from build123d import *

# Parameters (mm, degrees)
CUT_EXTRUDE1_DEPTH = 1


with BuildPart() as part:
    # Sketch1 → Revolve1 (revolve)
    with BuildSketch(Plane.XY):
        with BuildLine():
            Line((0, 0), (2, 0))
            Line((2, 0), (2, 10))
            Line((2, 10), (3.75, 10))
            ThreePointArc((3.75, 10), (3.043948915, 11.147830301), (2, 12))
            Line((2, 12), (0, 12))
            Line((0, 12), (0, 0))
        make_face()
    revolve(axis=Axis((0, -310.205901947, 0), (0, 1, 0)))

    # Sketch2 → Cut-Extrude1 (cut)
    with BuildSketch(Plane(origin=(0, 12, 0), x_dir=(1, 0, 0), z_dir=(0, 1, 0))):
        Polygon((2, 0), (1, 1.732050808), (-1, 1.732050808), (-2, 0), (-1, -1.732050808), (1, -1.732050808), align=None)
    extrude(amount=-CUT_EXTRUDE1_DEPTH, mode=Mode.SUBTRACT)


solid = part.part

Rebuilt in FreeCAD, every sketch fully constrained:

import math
import FreeCAD as App
import Part
import Sketcher
from FreeCAD import Vector
Q = App.Units.Quantity

doc = App.newDocument("Part")
body = doc.addObject("PartDesign::Body", "Body")

# Sketch on XY plane
sketch1 = body.newObject("Sketcher::SketchObject", "Sketch")
sketch1.AttachmentSupport = (doc.getObject("XY_Plane"), [""])
sketch1.MapMode = "FlatFace"
sketch1.addGeometry([
    Part.LineSegment(Vector(0, 0, 0), Vector(2, 0, 0)),  # 0
    Part.LineSegment(Vector(2, 0, 0), Vector(2, 10, 0)),  # 1
    Part.LineSegment(Vector(2, 10, 0), Vector(3.8, 10, 0)),  # 2
    Part.ArcOfCircle(Part.Circle(Vector(0, 8.5, 0), Vector(0, 0, 1), 4), math.radians(22), math.radians(60)),  # 3
    Part.LineSegment(Vector(2, 12, 0), Vector(0, 12, 0)),  # 4
    Part.LineSegment(Vector(0, 12, 0), Vector(0, 0, 0)),  # 5
], False)
sketch1.addConstraint([
    Sketcher.Constraint("Coincident", 0, 2, 1, 1),
    Sketcher.Constraint("Coincident", 1, 2, 2, 1),
    Sketcher.Constraint("Coincident", 2, 2, 3, 1),
    Sketcher.Constraint("Coincident", 3, 2, 4, 1),
    Sketcher.Constraint("Coincident", 4, 2, 5, 1),
    Sketcher.Constraint("Coincident", 5, 2, 0, 1),
    Sketcher.Constraint("Horizontal", 0),
    Sketcher.Constraint("Vertical", 1),
    Sketcher.Constraint("Horizontal", 2),
    Sketcher.Constraint("Horizontal", 4),
    Sketcher.Constraint("Vertical", 5),
    Sketcher.Constraint("Coincident", 5, 2, -1, 1),
    Sketcher.Constraint("PointOnObject", 3, 3, -2),
    Sketcher.Constraint("Vertical", 1, 2, 3, 2),
    Sketcher.Constraint("DistanceX", 0, 1, 0, 2, 2.0),
    Sketcher.Constraint("DistanceY", 1, 1, 1, 2, 10.0),
    Sketcher.Constraint("DistanceY", 5, 2, 5, 1, 12.0),
    Sketcher.Constraint("DistanceX", 2, 1, 2, 2, 1.75),
])
revolution = body.newObject("PartDesign::Revolution", "Revolution")
revolution.Profile = sketch1
revolution.ReferenceAxis = (sketch1, ["V_Axis"])
revolution.Angle = 360

# Sketch on XZ plane
sketch2 = body.newObject("Sketcher::SketchObject", "Sketch001")
sketch2.AttachmentSupport = (doc.getObject("XZ_Plane"), [""])
sketch2.MapMode = "FlatFace"
sketch2.AttachmentOffset = App.Placement(Vector(0, 0, -12), App.Rotation())
sketch2.addGeometry([
    Part.LineSegment(Vector(2, 0, 0), Vector(1, -1.7, 0)),  # 0
    Part.LineSegment(Vector(1, -1.7, 0), Vector(-1, -1.7, 0)),  # 1
    Part.LineSegment(Vector(-1, -1.7, 0), Vector(-2, 0, 0)),  # 2
    Part.LineSegment(Vector(-2, 0, 0), Vector(-1, 1.7, 0)),  # 3
    Part.LineSegment(Vector(-1, 1.7, 0), Vector(1, 1.7, 0)),  # 4
    Part.LineSegment(Vector(1, 1.7, 0), Vector(2, 0, 0)),  # 5
], False)
sketch2.addConstraint([
    Sketcher.Constraint("Coincident", 0, 2, 1, 1),
    Sketcher.Constraint("Coincident", 1, 2, 2, 1),
    Sketcher.Constraint("Coincident", 2, 2, 3, 1),
    Sketcher.Constraint("Coincident", 3, 2, 4, 1),
    Sketcher.Constraint("Coincident", 4, 2, 5, 1),
    Sketcher.Constraint("Coincident", 5, 2, 0, 1),
    Sketcher.Constraint("Horizontal", 1),
    Sketcher.Constraint("Horizontal", 4),
    Sketcher.Constraint("Symmetric", 0, 2, 3, 2, -1, 1),
    Sketcher.Constraint("Symmetric", 2, 2, 5, 2, -1, 1),
    Sketcher.Constraint("PointOnObject", 2, 2, -1),
    Sketcher.Constraint("Parallel", 2, 5),
    Sketcher.Constraint("Vertical", 1, 2, 3, 2),
    Sketcher.Constraint("DistanceX", 1, 2, 1, 1, 2.0),
    Sketcher.Constraint("Angle", 0, Q("-120 deg")),
    Sketcher.Constraint("Distance", 0, 2.0),
])
pocket1 = body.newObject("PartDesign::Pocket", "Pocket")
pocket1.Profile = sketch2
pocket1.Length = 1
pocket1.Reversed = True

doc.recompute()
